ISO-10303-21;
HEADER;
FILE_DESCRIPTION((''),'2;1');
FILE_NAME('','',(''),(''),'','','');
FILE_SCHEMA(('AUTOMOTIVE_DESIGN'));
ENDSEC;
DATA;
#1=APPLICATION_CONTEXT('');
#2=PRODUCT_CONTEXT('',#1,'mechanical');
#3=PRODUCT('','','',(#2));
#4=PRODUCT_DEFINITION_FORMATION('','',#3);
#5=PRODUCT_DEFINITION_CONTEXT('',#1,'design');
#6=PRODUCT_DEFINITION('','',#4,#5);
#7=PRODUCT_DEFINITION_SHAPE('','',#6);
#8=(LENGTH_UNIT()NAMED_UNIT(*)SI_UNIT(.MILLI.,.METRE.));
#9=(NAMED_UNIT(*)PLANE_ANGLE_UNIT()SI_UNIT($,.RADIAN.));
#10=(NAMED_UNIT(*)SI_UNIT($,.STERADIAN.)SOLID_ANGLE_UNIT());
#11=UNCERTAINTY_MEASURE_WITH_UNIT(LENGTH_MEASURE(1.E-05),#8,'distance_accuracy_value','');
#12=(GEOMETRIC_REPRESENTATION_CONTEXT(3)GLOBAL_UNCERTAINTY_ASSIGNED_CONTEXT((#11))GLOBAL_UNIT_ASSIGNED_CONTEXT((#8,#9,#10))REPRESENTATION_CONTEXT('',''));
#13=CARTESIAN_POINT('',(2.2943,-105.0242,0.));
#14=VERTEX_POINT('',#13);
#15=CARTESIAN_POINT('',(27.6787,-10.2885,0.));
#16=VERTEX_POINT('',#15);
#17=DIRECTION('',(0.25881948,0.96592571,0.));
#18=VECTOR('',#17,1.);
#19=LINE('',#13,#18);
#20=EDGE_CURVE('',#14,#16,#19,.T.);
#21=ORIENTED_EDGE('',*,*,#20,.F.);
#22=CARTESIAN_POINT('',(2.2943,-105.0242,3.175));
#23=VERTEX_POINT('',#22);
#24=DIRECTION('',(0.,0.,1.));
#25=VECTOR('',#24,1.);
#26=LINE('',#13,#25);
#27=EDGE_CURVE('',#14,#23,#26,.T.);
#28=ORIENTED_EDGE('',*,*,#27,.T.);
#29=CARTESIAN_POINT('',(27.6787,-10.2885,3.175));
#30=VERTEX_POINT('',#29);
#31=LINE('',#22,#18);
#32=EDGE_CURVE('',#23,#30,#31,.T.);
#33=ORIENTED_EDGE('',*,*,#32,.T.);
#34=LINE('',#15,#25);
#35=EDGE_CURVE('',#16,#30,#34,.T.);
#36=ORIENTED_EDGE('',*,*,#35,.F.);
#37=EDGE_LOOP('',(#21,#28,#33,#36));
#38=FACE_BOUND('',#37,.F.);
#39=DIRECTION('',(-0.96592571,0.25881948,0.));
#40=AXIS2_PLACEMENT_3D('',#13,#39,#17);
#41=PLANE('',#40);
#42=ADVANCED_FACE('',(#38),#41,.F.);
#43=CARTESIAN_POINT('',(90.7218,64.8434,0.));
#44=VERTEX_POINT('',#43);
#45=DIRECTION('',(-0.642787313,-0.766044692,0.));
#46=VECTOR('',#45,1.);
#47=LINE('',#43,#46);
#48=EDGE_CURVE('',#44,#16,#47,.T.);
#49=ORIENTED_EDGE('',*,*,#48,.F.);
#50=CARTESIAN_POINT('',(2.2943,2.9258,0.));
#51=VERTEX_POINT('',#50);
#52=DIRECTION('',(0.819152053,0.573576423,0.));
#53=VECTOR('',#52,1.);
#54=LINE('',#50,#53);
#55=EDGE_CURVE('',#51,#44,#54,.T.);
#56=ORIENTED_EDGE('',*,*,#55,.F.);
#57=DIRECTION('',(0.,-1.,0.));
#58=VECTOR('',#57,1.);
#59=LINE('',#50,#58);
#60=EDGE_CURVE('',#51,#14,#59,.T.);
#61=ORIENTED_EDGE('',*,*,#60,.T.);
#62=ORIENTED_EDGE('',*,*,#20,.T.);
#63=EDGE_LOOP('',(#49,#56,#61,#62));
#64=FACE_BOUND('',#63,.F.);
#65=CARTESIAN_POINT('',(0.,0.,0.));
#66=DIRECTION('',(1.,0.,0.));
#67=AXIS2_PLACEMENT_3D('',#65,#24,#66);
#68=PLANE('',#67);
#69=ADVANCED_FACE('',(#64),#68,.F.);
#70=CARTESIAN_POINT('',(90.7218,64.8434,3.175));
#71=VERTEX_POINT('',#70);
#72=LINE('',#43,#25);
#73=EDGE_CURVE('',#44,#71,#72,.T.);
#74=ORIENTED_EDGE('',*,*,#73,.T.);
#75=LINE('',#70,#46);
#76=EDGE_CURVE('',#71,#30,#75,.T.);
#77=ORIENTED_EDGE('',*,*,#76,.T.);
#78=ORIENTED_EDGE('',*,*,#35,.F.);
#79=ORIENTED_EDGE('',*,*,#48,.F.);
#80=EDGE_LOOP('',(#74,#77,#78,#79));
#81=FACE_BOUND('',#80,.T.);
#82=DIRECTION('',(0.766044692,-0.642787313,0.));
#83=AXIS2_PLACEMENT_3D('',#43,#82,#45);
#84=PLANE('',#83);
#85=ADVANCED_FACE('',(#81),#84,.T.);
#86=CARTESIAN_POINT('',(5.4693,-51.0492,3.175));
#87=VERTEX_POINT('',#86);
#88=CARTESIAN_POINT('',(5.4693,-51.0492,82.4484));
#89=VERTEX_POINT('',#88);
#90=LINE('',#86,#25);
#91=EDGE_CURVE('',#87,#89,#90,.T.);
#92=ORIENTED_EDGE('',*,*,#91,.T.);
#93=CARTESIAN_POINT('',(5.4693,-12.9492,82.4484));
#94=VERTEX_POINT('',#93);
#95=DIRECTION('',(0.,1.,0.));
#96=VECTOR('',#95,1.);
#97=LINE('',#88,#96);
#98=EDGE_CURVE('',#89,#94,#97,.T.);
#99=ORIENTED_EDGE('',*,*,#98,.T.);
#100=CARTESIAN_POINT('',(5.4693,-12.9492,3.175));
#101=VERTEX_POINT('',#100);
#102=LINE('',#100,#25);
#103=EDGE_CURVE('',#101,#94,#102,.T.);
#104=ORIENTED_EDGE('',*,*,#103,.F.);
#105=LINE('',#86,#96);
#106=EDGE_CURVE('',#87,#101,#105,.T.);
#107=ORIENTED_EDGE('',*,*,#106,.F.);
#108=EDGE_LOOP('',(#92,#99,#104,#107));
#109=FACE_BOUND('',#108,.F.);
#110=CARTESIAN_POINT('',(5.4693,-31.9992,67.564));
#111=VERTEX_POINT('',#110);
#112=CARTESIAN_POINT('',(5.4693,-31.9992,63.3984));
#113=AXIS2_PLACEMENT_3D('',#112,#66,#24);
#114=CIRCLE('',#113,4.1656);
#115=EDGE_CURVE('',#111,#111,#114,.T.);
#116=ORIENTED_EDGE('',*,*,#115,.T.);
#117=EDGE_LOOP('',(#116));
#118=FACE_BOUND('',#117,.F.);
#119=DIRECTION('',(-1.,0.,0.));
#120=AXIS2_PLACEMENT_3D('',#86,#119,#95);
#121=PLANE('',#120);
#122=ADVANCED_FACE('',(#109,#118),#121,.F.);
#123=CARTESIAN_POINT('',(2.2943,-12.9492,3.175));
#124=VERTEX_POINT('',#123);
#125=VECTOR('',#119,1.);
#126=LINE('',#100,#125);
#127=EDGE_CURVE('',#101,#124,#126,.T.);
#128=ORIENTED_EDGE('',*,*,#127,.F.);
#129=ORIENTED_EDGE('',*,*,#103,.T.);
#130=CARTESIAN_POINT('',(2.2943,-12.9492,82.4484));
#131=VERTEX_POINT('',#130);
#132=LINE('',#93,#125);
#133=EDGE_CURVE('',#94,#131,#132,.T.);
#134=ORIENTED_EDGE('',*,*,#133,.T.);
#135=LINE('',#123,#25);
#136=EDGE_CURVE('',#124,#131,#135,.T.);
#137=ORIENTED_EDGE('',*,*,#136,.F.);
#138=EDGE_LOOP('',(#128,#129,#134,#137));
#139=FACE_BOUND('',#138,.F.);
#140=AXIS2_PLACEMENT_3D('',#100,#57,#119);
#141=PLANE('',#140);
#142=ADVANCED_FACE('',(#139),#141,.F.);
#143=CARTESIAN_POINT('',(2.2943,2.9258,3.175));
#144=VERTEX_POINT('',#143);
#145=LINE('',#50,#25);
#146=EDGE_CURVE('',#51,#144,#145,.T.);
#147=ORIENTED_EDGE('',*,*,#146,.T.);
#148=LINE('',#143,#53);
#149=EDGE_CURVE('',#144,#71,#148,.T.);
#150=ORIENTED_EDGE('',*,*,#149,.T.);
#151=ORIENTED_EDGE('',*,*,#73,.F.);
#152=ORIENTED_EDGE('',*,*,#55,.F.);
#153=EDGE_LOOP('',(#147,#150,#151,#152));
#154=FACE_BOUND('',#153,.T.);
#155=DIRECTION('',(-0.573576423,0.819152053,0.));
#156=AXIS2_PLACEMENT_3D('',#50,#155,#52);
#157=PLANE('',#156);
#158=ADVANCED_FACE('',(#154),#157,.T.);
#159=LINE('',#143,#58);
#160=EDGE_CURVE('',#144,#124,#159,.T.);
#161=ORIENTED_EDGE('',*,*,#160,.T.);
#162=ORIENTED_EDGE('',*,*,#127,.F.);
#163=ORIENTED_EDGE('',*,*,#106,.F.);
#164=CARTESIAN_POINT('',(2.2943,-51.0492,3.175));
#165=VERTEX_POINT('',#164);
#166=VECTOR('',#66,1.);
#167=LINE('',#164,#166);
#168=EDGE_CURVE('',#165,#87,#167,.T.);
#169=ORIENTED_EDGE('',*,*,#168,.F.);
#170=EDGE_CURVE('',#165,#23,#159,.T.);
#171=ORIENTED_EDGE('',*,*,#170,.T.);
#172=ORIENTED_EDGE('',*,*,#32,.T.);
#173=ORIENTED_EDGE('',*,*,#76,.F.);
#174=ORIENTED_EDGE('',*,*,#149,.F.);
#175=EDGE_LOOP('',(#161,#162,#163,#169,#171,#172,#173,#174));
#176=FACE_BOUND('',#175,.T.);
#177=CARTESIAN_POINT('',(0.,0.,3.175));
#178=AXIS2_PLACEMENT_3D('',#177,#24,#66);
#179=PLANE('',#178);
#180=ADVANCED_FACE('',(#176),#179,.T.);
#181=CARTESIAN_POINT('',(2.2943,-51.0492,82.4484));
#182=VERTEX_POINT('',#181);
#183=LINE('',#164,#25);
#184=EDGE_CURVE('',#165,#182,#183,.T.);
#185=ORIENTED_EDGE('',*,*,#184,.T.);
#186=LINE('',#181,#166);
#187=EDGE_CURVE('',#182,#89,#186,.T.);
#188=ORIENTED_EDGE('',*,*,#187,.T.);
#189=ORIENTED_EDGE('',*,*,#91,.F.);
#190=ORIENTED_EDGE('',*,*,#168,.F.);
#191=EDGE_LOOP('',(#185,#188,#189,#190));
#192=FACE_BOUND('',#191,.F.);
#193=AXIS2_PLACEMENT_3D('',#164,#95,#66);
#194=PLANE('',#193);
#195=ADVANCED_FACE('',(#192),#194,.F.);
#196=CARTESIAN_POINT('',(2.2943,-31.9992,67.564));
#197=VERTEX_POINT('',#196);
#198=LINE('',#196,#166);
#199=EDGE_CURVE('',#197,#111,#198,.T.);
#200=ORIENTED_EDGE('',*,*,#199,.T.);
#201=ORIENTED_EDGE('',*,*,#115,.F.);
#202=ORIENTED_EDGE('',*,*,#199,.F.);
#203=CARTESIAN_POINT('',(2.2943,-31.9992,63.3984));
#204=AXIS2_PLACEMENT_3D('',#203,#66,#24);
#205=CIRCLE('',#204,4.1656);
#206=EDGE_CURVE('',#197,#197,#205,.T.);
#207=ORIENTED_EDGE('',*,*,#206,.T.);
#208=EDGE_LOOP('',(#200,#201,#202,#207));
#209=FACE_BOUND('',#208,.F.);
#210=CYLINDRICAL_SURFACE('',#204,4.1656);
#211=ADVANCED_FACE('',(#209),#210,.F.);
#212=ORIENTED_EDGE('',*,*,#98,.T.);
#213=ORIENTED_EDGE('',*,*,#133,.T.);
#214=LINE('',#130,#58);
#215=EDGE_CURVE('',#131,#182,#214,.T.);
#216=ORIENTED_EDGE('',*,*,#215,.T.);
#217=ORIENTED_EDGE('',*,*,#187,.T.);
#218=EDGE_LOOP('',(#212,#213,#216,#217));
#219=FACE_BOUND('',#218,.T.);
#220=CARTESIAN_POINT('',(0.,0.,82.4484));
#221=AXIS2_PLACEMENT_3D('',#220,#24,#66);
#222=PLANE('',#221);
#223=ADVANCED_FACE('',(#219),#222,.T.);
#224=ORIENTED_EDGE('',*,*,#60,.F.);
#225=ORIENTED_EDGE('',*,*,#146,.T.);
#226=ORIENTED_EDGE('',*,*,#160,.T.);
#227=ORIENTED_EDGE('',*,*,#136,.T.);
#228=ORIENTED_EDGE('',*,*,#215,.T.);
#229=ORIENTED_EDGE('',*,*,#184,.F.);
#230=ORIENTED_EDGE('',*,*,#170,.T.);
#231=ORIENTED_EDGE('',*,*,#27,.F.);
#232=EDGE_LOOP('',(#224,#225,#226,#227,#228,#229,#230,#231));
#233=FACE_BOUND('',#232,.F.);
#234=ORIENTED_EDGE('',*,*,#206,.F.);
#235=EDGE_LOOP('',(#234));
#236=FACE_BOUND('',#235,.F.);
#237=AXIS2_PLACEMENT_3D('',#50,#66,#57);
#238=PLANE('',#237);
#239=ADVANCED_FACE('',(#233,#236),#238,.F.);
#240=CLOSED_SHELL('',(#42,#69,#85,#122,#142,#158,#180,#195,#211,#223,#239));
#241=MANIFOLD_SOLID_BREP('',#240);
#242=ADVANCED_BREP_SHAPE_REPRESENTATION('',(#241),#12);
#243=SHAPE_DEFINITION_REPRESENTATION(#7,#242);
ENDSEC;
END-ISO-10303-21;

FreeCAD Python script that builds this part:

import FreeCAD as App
import Part
import Sketcher

V = App.Vector
Q = App.Units.Quantity


def add_polygon(sketch, points):
    """Adds a closed chain of lines whose ends are joined by coincident constraints."""
    first, n = sketch.GeometryCount, len(points)
    for a, b in zip(points, points[1:] + points[:1]):
        sketch.addGeometry(Part.LineSegment(App.Vector(*a, 0), App.Vector(*b, 0)), False)
    for i in range(n):
        sketch.addConstraint(Sketcher.Constraint("Coincident", first + i, 2, first + (i + 1) % n, 1))

doc = App.newDocument("Part")
body = doc.addObject("PartDesign::Body", "Body")

# Sketch on XY plane
sketch1 = body.newObject("Sketcher::SketchObject", "Sketch")
sketch1.AttachmentSupport = (doc.getObject("XY_Plane"), [""])
sketch1.MapMode = "FlatFace"
add_polygon(sketch1, [(91, 65), (2, 3), (2, -105), (28, -10)])  # lines 0-3
sketch1.addConstraint([
    Sketcher.Constraint("Vertical", 1),
    Sketcher.Constraint("Equal", 2, 3),
    Sketcher.Constraint("DistanceY", 1, 2, 1, 1, Q("4.25 in")),
    Sketcher.Constraint("Distance", 0, Q("4.25 in")),
    Sketcher.Constraint("Angle", 0, Q("-145 deg")),
    Sketcher.Constraint("Angle", 2, Q("75 deg")),
    Sketcher.Constraint("DistanceY", -1, 1, 0, 2, Q("0.1152 in")),
    Sketcher.Constraint("DistanceX", -1, 1, 0, 2, Q("2.2943 mm")),
])
pad1 = body.newObject("PartDesign::Pad", "Pad")
pad1.Profile = sketch1
pad1.Length = Q("0.125 in")

# Sketch on XY plane
sketch2 = body.newObject("Sketcher::SketchObject", "Sketch001")
sketch2.AttachmentSupport = (doc.getObject("XY_Plane"), [""])
sketch2.MapMode = "FlatFace"
sketch2.AttachmentOffset = App.Placement(V(0, 0, 0.125 * 25.4), App.Rotation())
add_polygon(sketch2, [(2.3, -12.9), (2.3, -51), (5.5, -51), (5.5, -12.9)])  # lines 0-3
sketch2.addConstraint([
    Sketcher.Constraint("Vertical", 0),
    Sketcher.Constraint("Horizontal", 1),
    Sketcher.Constraint("Vertical", 2),
    Sketcher.Constraint("Horizontal", 3),
    Sketcher.Constraint("DistanceY", 0, 2, 0, 1, Q("1.5 in")),
    Sketcher.Constraint("DistanceX", 1, 1, 1, 2, Q("0.125 in")),
    Sketcher.Constraint("DistanceY", 0, 2, -1, 1, Q("2.0098 in")),
    Sketcher.Constraint("DistanceX", -1, 1, 0, 2, Q("2.2943 mm")),
])
pad2 = body.newObject("PartDesign::Pad", "Pad001")
pad2.Profile = sketch2
pad2.Length = Q("3.121 in")

# Sketch on YZ plane
sketch3 = body.newObject("Sketcher::SketchObject", "Sketch002")
sketch3.AttachmentSupport = (doc.getObject("YZ_Plane"), [""])
sketch3.MapMode = "FlatFace"
sketch3.AttachmentOffset = App.Placement(V(0, 0, 2.2943), App.Rotation())
sketch3.addGeometry(Part.Circle(V(-32, 63.4, 0), V(0, 0, 1), 4.2), False)
sketch3.addConstraint([
    Sketcher.Constraint("Diameter", 0, Q("0.328 in")),
    Sketcher.Constraint("DistanceY", -1, 1, 0, 3, Q("2.496 in")),
    Sketcher.Constraint("DistanceX", 0, 3, -1, 1, Q("1.2598 in")),
])
doc.recompute()
hole = body.newObject("PartDesign::Hole", "Hole")
hole.Profile = sketch3
hole.ThreadType = "None"
hole.Diameter = Q("0.328 in")
hole.DepthType = "ThroughAll"
hole.Reversed = True

doc.recompute()
